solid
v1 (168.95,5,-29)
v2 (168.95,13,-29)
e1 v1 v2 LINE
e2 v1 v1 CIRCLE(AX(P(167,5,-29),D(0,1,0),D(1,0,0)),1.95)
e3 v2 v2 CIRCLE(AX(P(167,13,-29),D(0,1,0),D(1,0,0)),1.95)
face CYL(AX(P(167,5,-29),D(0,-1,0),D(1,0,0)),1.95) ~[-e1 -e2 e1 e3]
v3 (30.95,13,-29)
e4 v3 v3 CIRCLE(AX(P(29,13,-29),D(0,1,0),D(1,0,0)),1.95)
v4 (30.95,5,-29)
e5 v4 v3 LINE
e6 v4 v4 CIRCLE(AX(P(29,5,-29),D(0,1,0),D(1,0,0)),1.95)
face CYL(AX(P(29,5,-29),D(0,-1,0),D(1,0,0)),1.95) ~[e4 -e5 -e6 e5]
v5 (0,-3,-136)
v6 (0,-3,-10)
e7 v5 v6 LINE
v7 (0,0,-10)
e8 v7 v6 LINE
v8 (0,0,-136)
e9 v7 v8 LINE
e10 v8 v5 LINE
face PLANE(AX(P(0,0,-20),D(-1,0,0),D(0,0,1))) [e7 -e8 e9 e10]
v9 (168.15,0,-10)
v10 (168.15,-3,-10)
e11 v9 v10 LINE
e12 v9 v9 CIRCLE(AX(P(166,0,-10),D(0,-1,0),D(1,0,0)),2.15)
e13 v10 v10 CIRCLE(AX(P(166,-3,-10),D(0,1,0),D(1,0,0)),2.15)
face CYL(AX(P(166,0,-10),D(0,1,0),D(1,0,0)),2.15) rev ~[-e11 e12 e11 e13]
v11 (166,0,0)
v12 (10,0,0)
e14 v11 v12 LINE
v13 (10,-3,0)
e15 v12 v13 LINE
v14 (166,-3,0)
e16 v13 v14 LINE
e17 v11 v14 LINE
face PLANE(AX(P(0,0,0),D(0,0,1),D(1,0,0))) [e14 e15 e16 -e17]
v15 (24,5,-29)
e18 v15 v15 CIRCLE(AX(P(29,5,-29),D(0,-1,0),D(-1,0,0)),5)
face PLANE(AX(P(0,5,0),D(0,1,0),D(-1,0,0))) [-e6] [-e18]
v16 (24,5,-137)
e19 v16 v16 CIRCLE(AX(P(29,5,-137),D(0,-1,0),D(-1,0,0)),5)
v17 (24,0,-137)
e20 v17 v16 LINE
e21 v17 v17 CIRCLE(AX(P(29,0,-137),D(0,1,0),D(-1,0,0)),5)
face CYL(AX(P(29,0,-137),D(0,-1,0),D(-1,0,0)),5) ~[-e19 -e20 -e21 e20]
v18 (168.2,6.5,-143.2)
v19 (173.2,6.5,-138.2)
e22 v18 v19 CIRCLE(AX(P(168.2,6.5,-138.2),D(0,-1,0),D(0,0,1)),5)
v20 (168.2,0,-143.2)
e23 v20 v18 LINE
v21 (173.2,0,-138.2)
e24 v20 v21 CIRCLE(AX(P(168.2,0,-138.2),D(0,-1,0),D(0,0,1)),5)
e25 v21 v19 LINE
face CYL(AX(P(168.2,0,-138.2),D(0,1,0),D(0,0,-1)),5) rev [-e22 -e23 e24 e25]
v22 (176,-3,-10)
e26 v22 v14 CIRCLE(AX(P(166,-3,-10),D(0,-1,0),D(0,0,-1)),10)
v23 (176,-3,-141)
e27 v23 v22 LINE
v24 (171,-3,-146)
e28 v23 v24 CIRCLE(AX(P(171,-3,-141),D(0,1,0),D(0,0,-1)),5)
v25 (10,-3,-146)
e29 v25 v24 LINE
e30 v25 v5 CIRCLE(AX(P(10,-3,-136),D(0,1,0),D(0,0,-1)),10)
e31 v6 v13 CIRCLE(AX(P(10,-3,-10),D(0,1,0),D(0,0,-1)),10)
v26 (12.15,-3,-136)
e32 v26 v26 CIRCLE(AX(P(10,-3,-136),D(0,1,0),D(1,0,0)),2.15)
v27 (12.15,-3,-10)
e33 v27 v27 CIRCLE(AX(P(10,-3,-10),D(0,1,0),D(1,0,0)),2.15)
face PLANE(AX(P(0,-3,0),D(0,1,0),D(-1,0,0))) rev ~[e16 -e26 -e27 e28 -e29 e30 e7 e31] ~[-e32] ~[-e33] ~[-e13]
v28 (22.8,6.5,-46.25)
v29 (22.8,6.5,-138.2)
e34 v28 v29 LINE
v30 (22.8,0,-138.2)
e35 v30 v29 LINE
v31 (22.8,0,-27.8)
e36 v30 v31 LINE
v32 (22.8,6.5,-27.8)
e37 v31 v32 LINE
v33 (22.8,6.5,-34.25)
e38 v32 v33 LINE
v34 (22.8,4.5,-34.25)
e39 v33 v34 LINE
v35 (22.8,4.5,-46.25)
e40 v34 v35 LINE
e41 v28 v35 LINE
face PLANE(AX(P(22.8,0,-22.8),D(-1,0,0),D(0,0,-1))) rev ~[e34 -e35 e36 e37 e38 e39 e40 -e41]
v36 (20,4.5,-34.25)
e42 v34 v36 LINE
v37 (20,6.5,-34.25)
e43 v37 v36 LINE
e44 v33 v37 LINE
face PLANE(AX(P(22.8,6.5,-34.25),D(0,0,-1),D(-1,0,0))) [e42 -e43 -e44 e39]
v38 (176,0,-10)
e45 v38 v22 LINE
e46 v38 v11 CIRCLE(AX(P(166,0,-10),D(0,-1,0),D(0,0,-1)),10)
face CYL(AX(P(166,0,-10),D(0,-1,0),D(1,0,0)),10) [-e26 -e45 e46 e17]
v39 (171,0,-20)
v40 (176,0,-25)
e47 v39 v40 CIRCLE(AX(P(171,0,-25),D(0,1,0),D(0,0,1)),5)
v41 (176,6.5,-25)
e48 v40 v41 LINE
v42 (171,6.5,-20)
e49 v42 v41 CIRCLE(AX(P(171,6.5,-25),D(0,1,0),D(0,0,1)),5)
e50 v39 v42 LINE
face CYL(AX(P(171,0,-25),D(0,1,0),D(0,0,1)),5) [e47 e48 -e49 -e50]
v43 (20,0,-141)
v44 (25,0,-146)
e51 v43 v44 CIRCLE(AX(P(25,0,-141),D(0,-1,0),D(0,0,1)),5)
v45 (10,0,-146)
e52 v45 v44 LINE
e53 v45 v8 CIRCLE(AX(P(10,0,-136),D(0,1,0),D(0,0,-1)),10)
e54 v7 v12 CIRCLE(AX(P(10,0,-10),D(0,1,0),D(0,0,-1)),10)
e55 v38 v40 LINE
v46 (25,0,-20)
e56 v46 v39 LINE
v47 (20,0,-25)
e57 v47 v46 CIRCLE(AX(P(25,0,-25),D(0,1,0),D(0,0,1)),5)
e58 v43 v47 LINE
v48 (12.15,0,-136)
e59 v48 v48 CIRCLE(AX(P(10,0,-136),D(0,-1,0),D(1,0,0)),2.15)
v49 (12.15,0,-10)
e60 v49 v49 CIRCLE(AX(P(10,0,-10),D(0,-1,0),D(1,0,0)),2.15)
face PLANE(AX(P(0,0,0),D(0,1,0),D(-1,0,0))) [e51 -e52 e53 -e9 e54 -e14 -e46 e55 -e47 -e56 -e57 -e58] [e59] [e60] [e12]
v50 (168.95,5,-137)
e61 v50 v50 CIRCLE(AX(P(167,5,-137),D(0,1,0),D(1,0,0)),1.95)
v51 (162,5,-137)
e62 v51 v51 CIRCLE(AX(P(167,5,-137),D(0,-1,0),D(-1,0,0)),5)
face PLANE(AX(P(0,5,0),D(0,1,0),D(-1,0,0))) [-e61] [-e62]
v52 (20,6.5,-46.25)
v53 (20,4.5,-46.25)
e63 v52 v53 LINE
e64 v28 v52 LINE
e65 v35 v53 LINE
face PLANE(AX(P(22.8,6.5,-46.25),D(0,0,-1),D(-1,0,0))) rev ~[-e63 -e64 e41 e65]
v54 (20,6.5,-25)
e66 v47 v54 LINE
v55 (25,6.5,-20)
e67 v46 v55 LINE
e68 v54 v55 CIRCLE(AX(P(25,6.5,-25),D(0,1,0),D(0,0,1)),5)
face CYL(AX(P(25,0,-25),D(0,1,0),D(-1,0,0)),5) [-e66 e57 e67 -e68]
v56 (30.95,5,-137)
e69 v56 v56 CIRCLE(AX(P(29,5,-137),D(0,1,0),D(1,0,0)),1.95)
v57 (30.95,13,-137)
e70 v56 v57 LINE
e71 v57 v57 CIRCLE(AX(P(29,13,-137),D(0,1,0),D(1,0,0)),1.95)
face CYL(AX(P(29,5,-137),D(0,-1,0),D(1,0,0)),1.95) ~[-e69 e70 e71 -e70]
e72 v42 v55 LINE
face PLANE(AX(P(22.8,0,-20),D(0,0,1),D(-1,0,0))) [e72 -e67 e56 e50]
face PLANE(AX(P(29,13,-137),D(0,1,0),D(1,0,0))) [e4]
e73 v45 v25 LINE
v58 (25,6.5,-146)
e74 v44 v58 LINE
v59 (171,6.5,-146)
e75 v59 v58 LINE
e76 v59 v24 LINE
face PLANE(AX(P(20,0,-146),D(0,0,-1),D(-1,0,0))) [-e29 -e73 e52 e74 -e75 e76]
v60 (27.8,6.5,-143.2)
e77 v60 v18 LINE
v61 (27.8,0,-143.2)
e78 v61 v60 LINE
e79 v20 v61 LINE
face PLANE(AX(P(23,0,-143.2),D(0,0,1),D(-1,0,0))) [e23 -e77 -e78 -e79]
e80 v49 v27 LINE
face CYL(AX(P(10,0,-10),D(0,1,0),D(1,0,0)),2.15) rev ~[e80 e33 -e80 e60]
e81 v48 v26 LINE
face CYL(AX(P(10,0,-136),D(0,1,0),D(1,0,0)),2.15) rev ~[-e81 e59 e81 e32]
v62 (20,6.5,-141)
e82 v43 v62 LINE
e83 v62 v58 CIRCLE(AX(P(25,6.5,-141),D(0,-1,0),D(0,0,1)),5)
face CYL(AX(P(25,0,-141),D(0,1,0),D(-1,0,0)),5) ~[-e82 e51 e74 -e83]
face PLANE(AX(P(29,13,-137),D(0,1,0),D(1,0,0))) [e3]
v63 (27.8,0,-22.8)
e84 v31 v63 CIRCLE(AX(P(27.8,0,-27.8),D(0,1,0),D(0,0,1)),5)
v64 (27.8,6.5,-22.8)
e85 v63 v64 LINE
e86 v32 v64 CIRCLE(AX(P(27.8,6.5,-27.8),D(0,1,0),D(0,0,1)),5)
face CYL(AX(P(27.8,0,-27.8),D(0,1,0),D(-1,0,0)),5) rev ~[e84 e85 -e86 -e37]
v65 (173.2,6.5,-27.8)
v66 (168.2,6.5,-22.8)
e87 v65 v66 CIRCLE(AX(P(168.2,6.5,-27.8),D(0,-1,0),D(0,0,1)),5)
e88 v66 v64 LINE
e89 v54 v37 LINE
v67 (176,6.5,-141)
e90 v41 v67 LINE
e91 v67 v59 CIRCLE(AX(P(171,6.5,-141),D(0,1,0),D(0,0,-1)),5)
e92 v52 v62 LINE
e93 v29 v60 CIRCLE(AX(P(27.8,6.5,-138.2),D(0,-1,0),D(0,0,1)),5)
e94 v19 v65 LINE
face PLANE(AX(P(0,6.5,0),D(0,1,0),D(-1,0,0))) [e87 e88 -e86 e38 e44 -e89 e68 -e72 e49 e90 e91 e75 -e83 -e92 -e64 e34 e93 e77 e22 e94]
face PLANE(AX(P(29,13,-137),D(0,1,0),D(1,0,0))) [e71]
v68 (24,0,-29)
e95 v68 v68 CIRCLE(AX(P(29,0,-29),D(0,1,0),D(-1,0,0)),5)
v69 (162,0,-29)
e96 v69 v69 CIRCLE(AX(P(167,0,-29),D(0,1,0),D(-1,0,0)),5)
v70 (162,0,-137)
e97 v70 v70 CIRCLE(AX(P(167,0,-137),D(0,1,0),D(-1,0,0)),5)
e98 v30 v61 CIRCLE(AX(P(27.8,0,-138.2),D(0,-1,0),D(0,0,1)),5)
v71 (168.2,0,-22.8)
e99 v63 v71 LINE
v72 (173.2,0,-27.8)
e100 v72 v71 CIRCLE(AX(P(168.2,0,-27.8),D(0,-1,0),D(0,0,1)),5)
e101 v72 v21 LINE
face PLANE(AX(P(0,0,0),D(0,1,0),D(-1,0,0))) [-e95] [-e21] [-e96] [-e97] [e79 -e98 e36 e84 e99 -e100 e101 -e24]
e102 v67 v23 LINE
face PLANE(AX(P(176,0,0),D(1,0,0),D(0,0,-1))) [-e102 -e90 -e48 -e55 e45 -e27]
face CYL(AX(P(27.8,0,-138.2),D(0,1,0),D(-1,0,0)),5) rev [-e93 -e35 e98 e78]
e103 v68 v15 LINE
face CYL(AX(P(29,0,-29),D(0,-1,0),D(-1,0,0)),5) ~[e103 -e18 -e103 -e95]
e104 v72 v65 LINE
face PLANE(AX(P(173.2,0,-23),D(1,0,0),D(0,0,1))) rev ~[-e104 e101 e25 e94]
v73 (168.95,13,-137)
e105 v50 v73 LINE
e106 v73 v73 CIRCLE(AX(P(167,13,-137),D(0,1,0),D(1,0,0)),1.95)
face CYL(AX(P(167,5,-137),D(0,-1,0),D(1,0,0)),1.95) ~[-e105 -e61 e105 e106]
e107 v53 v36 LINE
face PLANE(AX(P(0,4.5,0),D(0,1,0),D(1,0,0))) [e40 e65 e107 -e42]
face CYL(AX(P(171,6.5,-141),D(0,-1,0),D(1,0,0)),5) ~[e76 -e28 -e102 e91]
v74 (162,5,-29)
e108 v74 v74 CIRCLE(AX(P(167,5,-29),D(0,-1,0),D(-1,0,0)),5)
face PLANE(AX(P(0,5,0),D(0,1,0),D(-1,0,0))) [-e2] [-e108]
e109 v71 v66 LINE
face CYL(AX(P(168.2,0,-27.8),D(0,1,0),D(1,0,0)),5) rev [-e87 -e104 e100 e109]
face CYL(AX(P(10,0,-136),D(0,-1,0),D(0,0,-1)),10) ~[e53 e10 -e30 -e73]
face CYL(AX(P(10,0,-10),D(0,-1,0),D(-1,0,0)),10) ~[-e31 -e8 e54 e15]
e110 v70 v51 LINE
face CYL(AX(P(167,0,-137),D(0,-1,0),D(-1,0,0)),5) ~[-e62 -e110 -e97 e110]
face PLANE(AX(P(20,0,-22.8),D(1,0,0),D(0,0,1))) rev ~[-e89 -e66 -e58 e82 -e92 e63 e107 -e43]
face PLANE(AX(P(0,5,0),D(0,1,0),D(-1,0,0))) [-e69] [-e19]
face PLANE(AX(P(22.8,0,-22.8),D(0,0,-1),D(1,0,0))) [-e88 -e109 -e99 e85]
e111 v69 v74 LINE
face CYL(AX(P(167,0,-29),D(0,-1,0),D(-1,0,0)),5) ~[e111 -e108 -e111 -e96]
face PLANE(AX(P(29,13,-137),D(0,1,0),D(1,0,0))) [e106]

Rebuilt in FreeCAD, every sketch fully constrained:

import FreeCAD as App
import Part
import Sketcher
Q = App.Units.Quantity


def edges_at(feature, points):
    """Names of the edges that pass closest to the given points."""
    edges = feature.Shape.Edges
    near = lambda p: min(range(len(edges)), key=lambda i: edges[i].distToShape(Part.Vertex(*p))[0])
    return sorted({f"Edge{near(p) + 1}" for p in points})


def add_polygon(sketch, points):
    """Adds a closed chain of lines whose ends are joined by coincident constraints."""
    first, n = sketch.GeometryCount, len(points)
    for a, b in zip(points, points[1:] + points[:1]):
        sketch.addGeometry(Part.LineSegment(App.Vector(*a, 0), App.Vector(*b, 0)), False)
    for i in range(n):
        sketch.addConstraint(Sketcher.Constraint("Coincident", first + i, 2, first + (i + 1) % n, 1))

doc = App.newDocument("Part")
body = doc.addObject("PartDesign::Body", "Body")

# Sketch on XZ plane
sketch1 = body.newObject("Sketcher::SketchObject", "Sketch")
sketch1.AttachmentSupport = (doc.getObject("XZ_Plane"), [""])
sketch1.MapMode = "FlatFace"
add_polygon(sketch1, [(0, 0), (176, 0), (176, -146), (0, -146)])  # lines 0-3
sketch1.addConstraint([
    Sketcher.Constraint("Horizontal", 0),
    Sketcher.Constraint("Vertical", 1),
    Sketcher.Constraint("Horizontal", 2),
    Sketcher.Constraint("Vertical", 3),
    Sketcher.Constraint("Coincident", 3, 2, -1, 1),
    Sketcher.Constraint("DistanceX", 0, 1, 0, 2, Q("176 mm")),
    Sketcher.Constraint("DistanceY", 1, 2, 1, 1, Q("146 mm")),
])
pad1 = body.newObject("PartDesign::Pad", "Pad")
pad1.Profile = sketch1
pad1.Length = 3

# Sketch on XZ plane
sketch2 = body.newObject("Sketcher::SketchObject", "Sketch001")
sketch2.AttachmentSupport = (doc.getObject("XZ_Plane"), [""])
sketch2.MapMode = "FlatFace"
sketch2.addGeometry([
    Part.Circle(App.Vector(29, -29, 0), App.Vector(0, 0, 1), 5),
    Part.Circle(App.Vector(167, -29, 0), App.Vector(0, 0, 1), 5),
    Part.Circle(App.Vector(29, -137, 0), App.Vector(0, 0, 1), 5),
    Part.Circle(App.Vector(167, -137, 0), App.Vector(0, 0, 1), 5),
], False)
sketch2.addConstraint([
    Sketcher.Constraint("Equal", 0, 1),
    Sketcher.Constraint("Equal", 1, 2),
    Sketcher.Constraint("Equal", 2, 3),
    Sketcher.Constraint("Horizontal", 0, 3, 1, 3),
    Sketcher.Constraint("Horizontal", 2, 3, 3, 3),
    Sketcher.Constraint("Vertical", 0, 3, 2, 3),
    Sketcher.Constraint("Vertical", 1, 3, 3, 3),
    Sketcher.Constraint("Diameter", 0, Q("10 mm")),
    Sketcher.Constraint("DistanceX", -1, 1, 0, 3, Q("29 mm")),
    Sketcher.Constraint("DistanceY", 0, 3, -1, 1, Q("29 mm")),
    Sketcher.Constraint("DistanceX", -1, 1, 1, 3, Q("167 mm")),
    Sketcher.Constraint("DistanceY", 2, 3, -1, 1, Q("137 mm")),
])
pad2 = body.newObject("PartDesign::Pad", "Pad001")
pad2.Profile = sketch2
pad2.Length = 5
pad2.Reversed = True

# Sketch on XZ plane
sketch3 = body.newObject("Sketcher::SketchObject", "Sketch002")
sketch3.AttachmentSupport = (doc.getObject("XZ_Plane"), [""])
sketch3.MapMode = "FlatFace"
add_polygon(sketch3, [(20, -20), (176, -20), (176, -146), (20, -146)])  # lines 0-3
add_polygon(sketch3, [(23, -23), (23, -143), (173, -143), (173, -23)])  # lines 4-7
sketch3.addConstraint([
    Sketcher.Constraint("Horizontal", 0),
    Sketcher.Constraint("Vertical", 1),
    Sketcher.Constraint("Horizontal", 2),
    Sketcher.Constraint("Vertical", 3),
    Sketcher.Constraint("Vertical", 4),
    Sketcher.Constraint("Horizontal", 5),
    Sketcher.Constraint("Vertical", 6),
    Sketcher.Constraint("Horizontal", 7),
    Sketcher.Constraint("DistanceX", -1, 1, 0, 2, Q("176 mm")),
    Sketcher.Constraint("DistanceY", 0, 2, -1, 1, Q("20 mm")),
    Sketcher.Constraint("DistanceY", 1, 2, -1, 1, Q("146 mm")),
    Sketcher.Constraint("DistanceX", -1, 1, 2, 2, Q("20 mm")),
    Sketcher.Constraint("DistanceX", 2, 2, 4, 2, Q("2.8 mm")),
    Sketcher.Constraint("DistanceY", 2, 2, 4, 2, Q("2.8 mm")),
    Sketcher.Constraint("DistanceX", 5, 2, 1, 2, Q("2.8 mm")),
    Sketcher.Constraint("DistanceY", 6, 2, 0, 2, Q("2.8 mm")),
])
pad3 = body.newObject("PartDesign::Pad", "Pad002")
pad3.Profile = sketch3
pad3.Length = 6.5
pad3.Reversed = True
doc.recompute()

fillet = body.newObject("PartDesign::Fillet", "Fillet")
fillet.Base = (pad3, edges_at(pad3, [
    (22.8, 3.25, -143.2),
    (22.8, 3.25, -22.8),
    (173.2, 3.25, -22.8),
    (173.2, 3.25, -143.2),
]))
fillet.Radius = 5

# Sketch on XZ plane
sketch4 = body.newObject("Sketcher::SketchObject", "Sketch003")
sketch4.AttachmentSupport = (doc.getObject("XZ_Plane"), [""])
sketch4.MapMode = "FlatFace"
sketch4.AttachmentOffset = App.Placement(App.Vector(0, 0, -5), App.Rotation())
sketch4.addGeometry([
    Part.Circle(App.Vector(29, -137, 0), App.Vector(0, 0, 1), 1.9),
    Part.Circle(App.Vector(167, -137, 0), App.Vector(0, 0, 1), 1.9),
    Part.Circle(App.Vector(167, -29, 0), App.Vector(0, 0, 1), 1.9),
    Part.Circle(App.Vector(29, -29, 0), App.Vector(0, 0, 1), 1.9),
], False)
sketch4.addConstraint([
    Sketcher.Constraint("Equal", 0, 1),
    Sketcher.Constraint("Equal", 1, 2),
    Sketcher.Constraint("Equal", 2, 3),
    Sketcher.Constraint("Horizontal", 0, 3, 1, 3),
    Sketcher.Constraint("Horizontal", 2, 3, 3, 3),
    Sketcher.Constraint("Vertical", 1, 3, 2, 3),
    Sketcher.Constraint("Vertical", 0, 3, 3, 3),
    Sketcher.Constraint("Diameter", 0, Q("3.9 mm")),
    Sketcher.Constraint("DistanceX", -1, 1, 0, 3, Q("29 mm")),
    Sketcher.Constraint("DistanceY", 0, 3, -1, 1, Q("137 mm")),
    Sketcher.Constraint("DistanceX", -1, 1, 1, 3, Q("167 mm")),
    Sketcher.Constraint("DistanceY", 2, 3, -1, 1, Q("29 mm")),
])
pad4 = body.newObject("PartDesign::Pad", "Pad003")
pad4.Profile = sketch4
pad4.Length = 8
pad4.Reversed = True
doc.recompute()

fillet2 = body.newObject("PartDesign::Fillet", "Fillet001")
fillet2.Base = (pad4, edges_at(pad4, [
    (176, 3.25, -20),
    (20, 3.25, -20),
    (176, 1.75, -146),
    (20, 3.25, -146),
]))
fillet2.Radius = 5
doc.recompute()

fillet3 = body.newObject("PartDesign::Fillet", "Fillet002")
fillet3.Base = (fillet2, edges_at(fillet2, [(176, -1.5, 0), (0, -1.5, 0), (0, -1.5, -146)]))
fillet3.Radius = 10

# Sketch on XZ plane
sketch5 = body.newObject("Sketcher::SketchObject", "Sketch004")
sketch5.AttachmentSupport = (doc.getObject("XZ_Plane"), [""])
sketch5.MapMode = "FlatFace"
sketch5.addGeometry([
    Part.Circle(App.Vector(10, -136, 0), App.Vector(0, 0, 1), 2.1),
    Part.Circle(App.Vector(10, -10, 0), App.Vector(0, 0, 1), 2.1),
    Part.Circle(App.Vector(166, -10, 0), App.Vector(0, 0, 1), 2.1),
], False)
sketch5.addConstraint([
    Sketcher.Constraint("Equal", 0, 1),
    Sketcher.Constraint("Equal", 1, 2),
    Sketcher.Constraint("Horizontal", 1, 3, 2, 3),
    Sketcher.Constraint("Vertical", 0, 3, 1, 3),
    Sketcher.Constraint("Diameter", 0, Q("4.3 mm")),
    Sketcher.Constraint("DistanceX", -1, 1, 0, 3, Q("10 mm")),
    Sketcher.Constraint("DistanceY", 0, 3, -1, 1, Q("136 mm")),
    Sketcher.Constraint("DistanceY", 1, 3, -1, 1, Q("10 mm")),
    Sketcher.Constraint("DistanceX", -1, 1, 2, 3, Q("166 mm")),
])
pocket1 = body.newObject("PartDesign::Pocket", "Pocket")
pocket1.Profile = sketch5
pocket1.Length = 8
pocket1.Reversed = True

# Sketch on XZ plane
sketch6 = body.newObject("Sketcher::SketchObject", "Sketch005")
sketch6.AttachmentSupport = (doc.getObject("XZ_Plane"), [""])
sketch6.MapMode = "FlatFace"
sketch6.AttachmentOffset = App.Placement(App.Vector(0, 0, -6.5), App.Rotation())
add_polygon(sketch6, [(20, -46.2), (20, -34.2), (22.8, -34.2), (22.8, -46.2)])  # lines 0-3
sketch6.addConstraint([
    Sketcher.Constraint("Vertical", 0),
    Sketcher.Constraint("Horizontal", 1),
    Sketcher.Constraint("Vertical", 2),
    Sketcher.Constraint("Horizontal", 3),
    Sketcher.Constraint("DistanceY", 0, 1, 0, 2, Q("12 mm")),
    Sketcher.Constraint("DistanceX", 1, 1, 1, 2, Q("2.8 mm")),
    Sketcher.Constraint("DistanceX", -1, 1, 0, 2, Q("20 mm")),
    Sketcher.Constraint("DistanceY", 0, 2, -1, 1, Q("34.25 mm")),
])
pocket2 = body.newObject("PartDesign::Pocket", "Pocket001")
pocket2.Profile = sketch6
pocket2.Length = 2
pocket2.Reversed = True

doc.recompute()
